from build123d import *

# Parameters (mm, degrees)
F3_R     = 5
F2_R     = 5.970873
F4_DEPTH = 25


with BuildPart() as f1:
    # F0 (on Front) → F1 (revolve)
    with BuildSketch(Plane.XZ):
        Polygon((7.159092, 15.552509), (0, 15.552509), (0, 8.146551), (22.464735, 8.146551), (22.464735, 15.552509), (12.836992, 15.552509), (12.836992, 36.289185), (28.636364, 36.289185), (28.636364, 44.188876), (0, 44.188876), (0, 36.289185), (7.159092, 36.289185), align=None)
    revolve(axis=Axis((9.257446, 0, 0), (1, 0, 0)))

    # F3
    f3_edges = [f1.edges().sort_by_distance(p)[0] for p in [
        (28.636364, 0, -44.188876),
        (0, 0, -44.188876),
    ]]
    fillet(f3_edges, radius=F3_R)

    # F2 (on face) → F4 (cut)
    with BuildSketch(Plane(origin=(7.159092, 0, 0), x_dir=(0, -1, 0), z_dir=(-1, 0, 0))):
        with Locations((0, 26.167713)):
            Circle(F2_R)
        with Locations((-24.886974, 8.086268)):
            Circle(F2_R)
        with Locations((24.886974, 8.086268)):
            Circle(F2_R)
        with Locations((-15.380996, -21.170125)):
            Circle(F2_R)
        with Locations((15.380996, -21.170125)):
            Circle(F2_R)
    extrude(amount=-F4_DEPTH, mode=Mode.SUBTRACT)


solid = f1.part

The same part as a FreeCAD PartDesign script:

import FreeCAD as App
import Part
import Sketcher

V = App.Vector
Q = App.Units.Quantity


def edges_at(feature, points):
    """Names of the edges that pass closest to the given points."""
    edges = feature.Shape.Edges
    near = lambda p: min(range(len(edges)), key=lambda i: edges[i].distToShape(Part.Vertex(*p))[0])
    return sorted({f"Edge{near(p) + 1}" for p in points})

doc = App.newDocument("Part")
body = doc.addObject("PartDesign::Body", "Body")

# Sketch on XZ plane
sketch1 = body.newObject("Sketcher::SketchObject", "Sketch")
sketch1.AttachmentSupport = (doc.getObject("XZ_Plane"), [""])
sketch1.MapMode = "FlatFace"
sketch1.addGeometry(Part.LineSegment(V(7.159092, 15.552509, 0), V(0, 15.552509, 0)), False)
sketch1.addGeometry(Part.LineSegment(V(0, 15.552509, 0), V(0, 8.146551, 0)), False)
sketch1.addGeometry(Part.LineSegment(V(0, 8.146551, 0), V(22.464735, 8.146551, 0)), False)
sketch1.addGeometry(Part.LineSegment(V(22.464735, 8.146551, 0), V(22.464735, 15.552509, 0)), False)
sketch1.addGeometry(Part.LineSegment(V(22.464735, 15.552509, 0), V(12.836992, 15.552509, 0)), False)
sketch1.addGeometry(Part.LineSegment(V(12.836992, 15.552509, 0), V(12.836992, 36.289185, 0)), False)
sketch1.addGeometry(Part.LineSegment(V(12.836992, 36.289185, 0), V(28.636364, 36.289185, 0)), False)
sketch1.addGeometry(Part.LineSegment(V(28.636364, 36.289185, 0), V(28.636364, 44.188876, 0)), False)
sketch1.addGeometry(Part.LineSegment(V(28.636364, 44.188876, 0), V(0, 44.188876, 0)), False)
sketch1.addGeometry(Part.LineSegment(V(0, 44.188876, 0), V(0, 36.289185, 0)), False)
sketch1.addGeometry(Part.LineSegment(V(0, 36.289185, 0), V(7.159092, 36.289185, 0)), False)
sketch1.addGeometry(Part.LineSegment(V(7.159092, 36.289185, 0), V(7.159092, 15.552509, 0)), False)
sketch1.addConstraint(Sketcher.Constraint("Coincident", 0, 2, 1, 1))
sketch1.addConstraint(Sketcher.Constraint("Coincident", 1, 2, 2, 1))
sketch1.addConstraint(Sketcher.Constraint("Coincident", 2, 2, 3, 1))
sketch1.addConstraint(Sketcher.Constraint("Coincident", 3, 2, 4, 1))
sketch1.addConstraint(Sketcher.Constraint("Coincident", 4, 2, 5, 1))
sketch1.addConstraint(Sketcher.Constraint("Coincident", 5, 2, 6, 1))
sketch1.addConstraint(Sketcher.Constraint("Coincident", 6, 2, 7, 1))
sketch1.addConstraint(Sketcher.Constraint("Coincident", 7, 2, 8, 1))
sketch1.addConstraint(Sketcher.Constraint("Coincident", 8, 2, 9, 1))
sketch1.addConstraint(Sketcher.Constraint("Coincident", 9, 2, 10, 1))
sketch1.addConstraint(Sketcher.Constraint("Coincident", 10, 2, 11, 1))
sketch1.addConstraint(Sketcher.Constraint("Coincident", 11, 2, 0, 1))
sketch1.addConstraint(Sketcher.Constraint("Horizontal", 0))
sketch1.addConstraint(Sketcher.Constraint("Vertical", 1))
sketch1.addConstraint(Sketcher.Constraint("Horizontal", 2))
sketch1.addConstraint(Sketcher.Constraint("Vertical", 3))
sketch1.addConstraint(Sketcher.Constraint("Horizontal", 4))
sketch1.addConstraint(Sketcher.Constraint("Vertical", 5))
sketch1.addConstraint(Sketcher.Constraint("Horizontal", 6))
sketch1.addConstraint(Sketcher.Constraint("Vertical", 7))
sketch1.addConstraint(Sketcher.Constraint("Horizontal", 8))
sketch1.addConstraint(Sketcher.Constraint("Vertical", 9))
sketch1.addConstraint(Sketcher.Constraint("Horizontal", 10))
sketch1.addConstraint(Sketcher.Constraint("Vertical", 11))
sketch1.addConstraint(Sketcher.Constraint("PointOnObject", 0, 2, -2))
sketch1.addConstraint(Sketcher.Constraint("PointOnObject", 8, 2, -2))
sketch1.addConstraint(Sketcher.Constraint("Horizontal", 0, 2, 3, 2))
sketch1.addConstraint(Sketcher.Constraint("Horizontal", 6, 2, 9, 2))
sketch1.addConstraint(Sketcher.Constraint("DistanceY", 7, 1, 7, 2, Q("7.899691 mm")))
sketch1.addConstraint(Sketcher.Constraint("DistanceX", 10, 2, 5, 2, Q("5.6779 mm")))
sketch1.addConstraint(Sketcher.Constraint("DistanceX", 0, 2, 0, 1, Q("7.159092 mm")))
sketch1.addConstraint(Sketcher.Constraint("DistanceX", 2, 1, 2, 2, Q("22.464735 mm")))
sketch1.addConstraint(Sketcher.Constraint("DistanceX", 6, 1, 6, 2, Q("15.799372 mm")))
sketch1.addConstraint(Sketcher.Constraint("DistanceY", 1, 2, 1, 1, Q("7.405958 mm")))
sketch1.addConstraint(Sketcher.Constraint("DistanceY", 5, 1, 5, 2, Q("20.736676 mm")))
sketch1.addConstraint(Sketcher.Constraint("DistanceY", -1, 1, 0, 2, Q("15.552509 mm")))
revolution = body.newObject("PartDesign::Revolution", "Revolution")
revolution.Profile = sketch1
revolution.ReferenceAxis = (sketch1, ["H_Axis"])
revolution.Angle = 360
doc.recompute()

fillet = body.newObject("PartDesign::Fillet", "Fillet")
fillet.Base = (revolution, edges_at(revolution, [(28.636, 0, -44.189), (0, 0, -44.189)]))
fillet.Radius = 5

# Sketch on YZ plane
sketch2 = body.newObject("Sketcher::SketchObject", "Sketch001")
sketch2.AttachmentSupport = (doc.getObject("YZ_Plane"), [""])
sketch2.MapMode = "FlatFace"
sketch2.AttachmentOffset = App.Placement(V(0, 0, 7.159092), App.Rotation())
sketch2.addGeometry(Part.Circle(V(0, 26.167713, 0), V(0, 0, 1), 5.970873), False)
sketch2.addGeometry(Part.Circle(V(24.886974, 8.086268, 0), V(0, 0, 1), 5.970873), False)
sketch2.addGeometry(Part.Circle(V(-24.886974, 8.086268, 0), V(0, 0, 1), 5.970873), False)
sketch2.addGeometry(Part.Circle(V(15.380996, -21.170125, 0), V(0, 0, 1), 5.970873), False)
sketch2.addGeometry(Part.Circle(V(-15.380996, -21.170125, 0), V(0, 0, 1), 5.970873), False)
sketch2.addConstraint(Sketcher.Constraint("Equal", 0, 1))
sketch2.addConstraint(Sketcher.Constraint("Equal", 1, 2))
sketch2.addConstraint(Sketcher.Constraint("Equal", 2, 3))
sketch2.addConstraint(Sketcher.Constraint("Equal", 3, 4))
sketch2.addConstraint(Sketcher.Constraint("Symmetric", 1, 3, 2, 3, -2))
sketch2.addConstraint(Sketcher.Constraint("Symmetric", 3, 3, 4, 3, -2))
sketch2.addConstraint(Sketcher.Constraint("PointOnObject", 0, 3, -2))
sketch2.addConstraint(Sketcher.Constraint("Diameter", 0, Q("11.941746 mm")))
sketch2.addConstraint(Sketcher.Constraint("DistanceX", 2, 3, 3, 3, Q("40.26797 mm")))
sketch2.addConstraint(Sketcher.Constraint("DistanceX", 4, 3, 3, 3, Q("30.761992 mm")))
sketch2.addConstraint(Sketcher.Constraint("DistanceY", -1, 1, 0, 3, Q("26.167713 mm")))
sketch2.addConstraint(Sketcher.Constraint("DistanceY", -1, 1, 1, 3, Q("8.086268 mm")))
sketch2.addConstraint(Sketcher.Constraint("DistanceY", 3, 3, -1, 1, Q("21.170125 mm")))
pocket1 = body.newObject("PartDesign::Pocket", "Pocket")
pocket1.Profile = sketch2
pocket1.Length = 25
pocket1.Reversed = True

doc.recompute()
